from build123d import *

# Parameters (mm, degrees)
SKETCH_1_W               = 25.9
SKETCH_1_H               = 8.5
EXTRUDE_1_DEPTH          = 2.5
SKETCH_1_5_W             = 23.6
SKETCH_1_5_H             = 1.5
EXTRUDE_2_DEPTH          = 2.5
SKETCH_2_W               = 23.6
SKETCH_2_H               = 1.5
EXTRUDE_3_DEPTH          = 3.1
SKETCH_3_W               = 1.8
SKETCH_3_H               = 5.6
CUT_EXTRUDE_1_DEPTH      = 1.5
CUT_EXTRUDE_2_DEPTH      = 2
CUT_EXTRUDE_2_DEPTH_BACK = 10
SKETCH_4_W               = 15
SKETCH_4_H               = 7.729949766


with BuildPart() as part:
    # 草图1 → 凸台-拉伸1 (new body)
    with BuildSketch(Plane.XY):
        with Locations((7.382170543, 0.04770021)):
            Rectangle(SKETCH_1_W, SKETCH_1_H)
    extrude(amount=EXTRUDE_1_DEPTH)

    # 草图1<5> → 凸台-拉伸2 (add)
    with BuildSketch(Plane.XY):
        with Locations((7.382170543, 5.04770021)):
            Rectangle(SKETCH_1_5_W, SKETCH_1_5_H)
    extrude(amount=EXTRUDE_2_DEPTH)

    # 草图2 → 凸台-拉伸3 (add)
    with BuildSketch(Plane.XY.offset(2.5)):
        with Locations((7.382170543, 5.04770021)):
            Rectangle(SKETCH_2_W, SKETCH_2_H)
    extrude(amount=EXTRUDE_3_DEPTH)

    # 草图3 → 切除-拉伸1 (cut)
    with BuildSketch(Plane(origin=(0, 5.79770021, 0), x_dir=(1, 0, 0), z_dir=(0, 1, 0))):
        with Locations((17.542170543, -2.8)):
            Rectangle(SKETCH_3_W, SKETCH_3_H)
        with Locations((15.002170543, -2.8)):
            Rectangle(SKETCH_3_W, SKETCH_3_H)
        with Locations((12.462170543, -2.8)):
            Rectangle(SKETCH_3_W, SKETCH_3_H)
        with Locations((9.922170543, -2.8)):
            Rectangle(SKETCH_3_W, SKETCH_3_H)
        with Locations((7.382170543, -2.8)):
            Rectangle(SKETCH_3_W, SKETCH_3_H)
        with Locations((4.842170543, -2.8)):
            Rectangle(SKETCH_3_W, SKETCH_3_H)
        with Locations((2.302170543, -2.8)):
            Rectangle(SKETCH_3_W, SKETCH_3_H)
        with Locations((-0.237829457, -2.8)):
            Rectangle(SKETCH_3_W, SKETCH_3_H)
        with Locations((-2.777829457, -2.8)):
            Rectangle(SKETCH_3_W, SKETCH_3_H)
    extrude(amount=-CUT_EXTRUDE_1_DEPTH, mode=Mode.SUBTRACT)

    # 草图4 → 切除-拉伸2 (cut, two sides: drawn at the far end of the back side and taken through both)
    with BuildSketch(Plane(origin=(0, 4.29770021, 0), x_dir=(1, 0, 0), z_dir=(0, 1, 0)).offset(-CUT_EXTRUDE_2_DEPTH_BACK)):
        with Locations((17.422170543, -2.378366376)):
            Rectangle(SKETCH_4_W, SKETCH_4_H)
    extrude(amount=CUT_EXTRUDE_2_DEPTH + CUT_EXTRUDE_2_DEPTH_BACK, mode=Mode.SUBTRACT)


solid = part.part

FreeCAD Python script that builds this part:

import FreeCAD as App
import Part
import Sketcher
from FreeCAD import Vector

doc = App.newDocument("Part")
body = doc.addObject("PartDesign::Body", "Body")

# Sketch on XY plane
sketch1 = body.newObject("Sketcher::SketchObject", "Sketch")
sketch1.AttachmentSupport = (doc.getObject("XY_Plane"), [""])
sketch1.MapMode = "FlatFace"
sketch1.addGeometry([
    Part.LineSegment(Vector(-6, 4, 0), Vector(-6, -4, 0)),
    Part.LineSegment(Vector(-6, -4, 0), Vector(20, -4, 0)),
    Part.LineSegment(Vector(20, -4, 0), Vector(20, 4, 0)),
    Part.LineSegment(Vector(20, 4, 0), Vector(-6, 4, 0)),
], False)
sketch1.addConstraint([
    Sketcher.Constraint("Coincident", 0, 2, 1, 1),
    Sketcher.Constraint("Coincident", 1, 2, 2, 1),
    Sketcher.Constraint("Coincident", 2, 2, 3, 1),
    Sketcher.Constraint("Coincident", 3, 2, 0, 1),
    Sketcher.Constraint("Vertical", 0),
    Sketcher.Constraint("Horizontal", 1),
    Sketcher.Constraint("Vertical", 2),
    Sketcher.Constraint("Horizontal", 3),
    Sketcher.Constraint("DistanceX", 1, 1, 1, 2, 25.9),
    Sketcher.Constraint("DistanceY", 0, 2, 0, 1, 8.5),
    Sketcher.Constraint("DistanceY", 0, 2, -1, 1, 4.2023),
    Sketcher.Constraint("DistanceX", 0, 2, -1, 1, 5.567829),
])
pad1 = body.newObject("PartDesign::Pad", "Pad")
pad1.Profile = sketch1
pad1.Length = 2.5

# Sketch on XY plane
sketch2 = body.newObject("Sketcher::SketchObject", "Sketch001")
sketch2.AttachmentSupport = (doc.getObject("XY_Plane"), [""])
sketch2.MapMode = "FlatFace"
sketch2.addGeometry([
    Part.LineSegment(Vector(-4.4, 5.8, 0), Vector(-4.4, 4.3, 0)),
    Part.LineSegment(Vector(-4.4, 4.3, 0), Vector(19.2, 4.3, 0)),
    Part.LineSegment(Vector(19.2, 4.3, 0), Vector(19.2, 5.8, 0)),
    Part.LineSegment(Vector(19.2, 5.8, 0), Vector(-4.4, 5.8, 0)),
], False)
sketch2.addConstraint([
    Sketcher.Constraint("Coincident", 0, 2, 1, 1),
    Sketcher.Constraint("Coincident", 1, 2, 2, 1),
    Sketcher.Constraint("Coincident", 2, 2, 3, 1),
    Sketcher.Constraint("Coincident", 3, 2, 0, 1),
    Sketcher.Constraint("Vertical", 0),
    Sketcher.Constraint("Horizontal", 1),
    Sketcher.Constraint("Vertical", 2),
    Sketcher.Constraint("Horizontal", 3),
    Sketcher.Constraint("DistanceX", 1, 1, 1, 2, 23.6),
    Sketcher.Constraint("DistanceY", 0, 2, 0, 1, 1.5),
    Sketcher.Constraint("DistanceY", -1, 1, 0, 2, 4.2977),
    Sketcher.Constraint("DistanceX", 0, 2, -1, 1, 4.417829),
])
pad2 = body.newObject("PartDesign::Pad", "Pad001")
pad2.Profile = sketch2
pad2.Length = 2.5

# Sketch on XY plane
sketch3 = body.newObject("Sketcher::SketchObject", "Sketch002")
sketch3.AttachmentSupport = (doc.getObject("XY_Plane"), [""])
sketch3.MapMode = "FlatFace"
sketch3.AttachmentOffset = App.Placement(Vector(0, 0, 2.5), App.Rotation())
sketch3.addGeometry([
    Part.LineSegment(Vector(-4.4, 5.8, 0), Vector(-4.4, 4.3, 0)),
    Part.LineSegment(Vector(-4.4, 4.3, 0), Vector(19.2, 4.3, 0)),
    Part.LineSegment(Vector(19.2, 4.3, 0), Vector(19.2, 5.8, 0)),
    Part.LineSegment(Vector(19.2, 5.8, 0), Vector(-4.4, 5.8, 0)),
], False)
sketch3.addConstraint([
    Sketcher.Constraint("Coincident", 0, 2, 1, 1),
    Sketcher.Constraint("Coincident", 1, 2, 2, 1),
    Sketcher.Constraint("Coincident", 2, 2, 3, 1),
    Sketcher.Constraint("Coincident", 3, 2, 0, 1),
    Sketcher.Constraint("Vertical", 0),
    Sketcher.Constraint("Horizontal", 1),
    Sketcher.Constraint("Vertical", 2),
    Sketcher.Constraint("Horizontal", 3),
    Sketcher.Constraint("DistanceX", 1, 1, 1, 2, 23.6),
    Sketcher.Constraint("DistanceY", 0, 2, 0, 1, 1.5),
    Sketcher.Constraint("DistanceY", -1, 1, 0, 2, 4.2977),
    Sketcher.Constraint("DistanceX", 0, 2, -1, 1, 4.417829),
])
pad3 = body.newObject("PartDesign::Pad", "Pad002")
pad3.Profile = sketch3
pad3.Length = 3.1

# Sketch on XZ plane
sketch4 = body.newObject("Sketcher::SketchObject", "Sketch003")
sketch4.AttachmentSupport = (doc.getObject("XZ_Plane"), [""])
sketch4.MapMode = "FlatFace"
sketch4.AttachmentOffset = App.Placement(Vector(0, 0, -5.7977), App.Rotation())
sketch4.addGeometry([
    Part.LineSegment(Vector(16.6, 0, 0), Vector(16.6, 5.6, 0)),  # 0
    Part.LineSegment(Vector(16.6, 5.6, 0), Vector(18.4, 5.6, 0)),  # 1
    Part.LineSegment(Vector(18.4, 5.6, 0), Vector(18.4, 0, 0)),  # 2
    Part.LineSegment(Vector(18.4, 0, 0), Vector(16.6, 0, 0)),  # 3
    Part.LineSegment(Vector(14.1, 0, 0), Vector(14.1, 5.6, 0)),  # 4
    Part.LineSegment(Vector(14.1, 5.6, 0), Vector(15.9, 5.6, 0)),  # 5
    Part.LineSegment(Vector(15.9, 5.6, 0), Vector(15.9, 0, 0)),  # 6
    Part.LineSegment(Vector(15.9, 0, 0), Vector(14.1, 0, 0)),  # 7
    Part.LineSegment(Vector(11.6, 0, 0), Vector(11.6, 5.6, 0)),  # 8
    Part.LineSegment(Vector(11.6, 5.6, 0), Vector(13.4, 5.6, 0)),  # 9
    Part.LineSegment(Vector(13.4, 5.6, 0), Vector(13.4, 0, 0)),  # 10
    Part.LineSegment(Vector(13.4, 0, 0), Vector(11.6, 0, 0)),  # 11
    Part.LineSegment(Vector(9, 0, 0), Vector(9, 5.6, 0)),  # 12
    Part.LineSegment(Vector(9, 5.6, 0), Vector(10.8, 5.6, 0)),  # 13
    Part.LineSegment(Vector(10.8, 5.6, 0), Vector(10.8, 0, 0)),  # 14
    Part.LineSegment(Vector(10.8, 0, 0), Vector(9, 0, 0)),  # 15
    Part.LineSegment(Vector(6.5, 0, 0), Vector(6.5, 5.6, 0)),  # 16
    Part.LineSegment(Vector(6.5, 5.6, 0), Vector(8.3, 5.6, 0)),  # 17
    Part.LineSegment(Vector(8.3, 5.6, 0), Vector(8.3, 0, 0)),  # 18
    Part.LineSegment(Vector(8.3, 0, 0), Vector(6.5, 0, 0)),  # 19
    Part.LineSegment(Vector(3.9, 0, 0), Vector(3.9, 5.6, 0)),  # 20
    Part.LineSegment(Vector(3.9, 5.6, 0), Vector(5.7, 5.6, 0)),  # 21
    Part.LineSegment(Vector(5.7, 5.6, 0), Vector(5.7, 0, 0)),  # 22
    Part.LineSegment(Vector(5.7, 0, 0), Vector(3.9, 0, 0)),  # 23
    Part.LineSegment(Vector(1.4, 0, 0), Vector(1.4, 5.6, 0)),  # 24
    Part.LineSegment(Vector(1.4, 5.6, 0), Vector(3.2, 5.6, 0)),  # 25
    Part.LineSegment(Vector(3.2, 5.6, 0), Vector(3.2, 0, 0)),  # 26
    Part.LineSegment(Vector(3.2, 0, 0), Vector(1.4, 0, 0)),  # 27
    Part.LineSegment(Vector(-1.1, 0, 0), Vector(-1.1, 5.6, 0)),  # 28
    Part.LineSegment(Vector(-1.1, 5.6, 0), Vector(0.7, 5.6, 0)),  # 29
    Part.LineSegment(Vector(0.7, 5.6, 0), Vector(0.7, 0, 0)),  # 30
    Part.LineSegment(Vector(0.7, 0, 0), Vector(-1.1, 0, 0)),  # 31
    Part.LineSegment(Vector(-3.7, 0, 0), Vector(-3.7, 5.6, 0)),  # 32
    Part.LineSegment(Vector(-3.7, 5.6, 0), Vector(-1.9, 5.6, 0)),  # 33
    Part.LineSegment(Vector(-1.9, 5.6, 0), Vector(-1.9, 0, 0)),  # 34
    Part.LineSegment(Vector(-1.9, 0, 0), Vector(-3.7, 0, 0)),  # 35
], False)
sketch4.addConstraint([
    Sketcher.Constraint("Coincident", 0, 2, 1, 1),
    Sketcher.Constraint("Coincident", 1, 2, 2, 1),
    Sketcher.Constraint("Coincident", 2, 2, 3, 1),
    Sketcher.Constraint("Coincident", 3, 2, 0, 1),
    Sketcher.Constraint("Coincident", 4, 2, 5, 1),
    Sketcher.Constraint("Coincident", 5, 2, 6, 1),
    Sketcher.Constraint("Coincident", 6, 2, 7, 1),
    Sketcher.Constraint("Coincident", 7, 2, 4, 1),
    Sketcher.Constraint("Coincident", 8, 2, 9, 1),
    Sketcher.Constraint("Coincident", 9, 2, 10, 1),
    Sketcher.Constraint("Coincident", 10, 2, 11, 1),
    Sketcher.Constraint("Coincident", 11, 2, 8, 1),
    Sketcher.Constraint("Coincident", 12, 2, 13, 1),
    Sketcher.Constraint("Coincident", 13, 2, 14, 1),
    Sketcher.Constraint("Coincident", 14, 2, 15, 1),
    Sketcher.Constraint("Coincident", 15, 2, 12, 1),
    Sketcher.Constraint("Coincident", 16, 2, 17, 1),
    Sketcher.Constraint("Coincident", 17, 2, 18, 1),
    Sketcher.Constraint("Coincident", 18, 2, 19, 1),
    Sketcher.Constraint("Coincident", 19, 2, 16, 1),
    Sketcher.Constraint("Coincident", 20, 2, 21, 1),
    Sketcher.Constraint("Coincident", 21, 2, 22, 1),
    Sketcher.Constraint("Coincident", 22, 2, 23, 1),
    Sketcher.Constraint("Coincident", 23, 2, 20, 1),
    Sketcher.Constraint("Coincident", 24, 2, 25, 1),
    Sketcher.Constraint("Coincident", 25, 2, 26, 1),
    Sketcher.Constraint("Coincident", 26, 2, 27, 1),
    Sketcher.Constraint("Coincident", 27, 2, 24, 1),
    Sketcher.Constraint("Coincident", 28, 2, 29, 1),
    Sketcher.Constraint("Coincident", 29, 2, 30, 1),
    Sketcher.Constraint("Coincident", 30, 2, 31, 1),
    Sketcher.Constraint("Coincident", 31, 2, 28, 1),
    Sketcher.Constraint("Coincident", 32, 2, 33, 1),
    Sketcher.Constraint("Coincident", 33, 2, 34, 1),
    Sketcher.Constraint("Coincident", 34, 2, 35, 1),
    Sketcher.Constraint("Coincident", 35, 2, 32, 1),
    Sketcher.Constraint("Vertical", 0),
    Sketcher.Constraint("Horizontal", 1),
    Sketcher.Constraint("Vertical", 2),
    Sketcher.Constraint("Horizontal", 3),
    Sketcher.Constraint("Vertical", 4),
    Sketcher.Constraint("Horizontal", 5),
    Sketcher.Constraint("Vertical", 6),
    Sketcher.Constraint("Horizontal", 7),
    Sketcher.Constraint("Vertical", 8),
    Sketcher.Constraint("Horizontal", 9),
    Sketcher.Constraint("Vertical", 10),
    Sketcher.Constraint("Horizontal", 11),
    Sketcher.Constraint("Vertical", 12),
    Sketcher.Constraint("Horizontal", 13),
    Sketcher.Constraint("Vertical", 14),
    Sketcher.Constraint("Horizontal", 15),
    Sketcher.Constraint("Vertical", 16),
    Sketcher.Constraint("Horizontal", 17),
    Sketcher.Constraint("Vertical", 18),
    Sketcher.Constraint("Horizontal", 19),
    Sketcher.Constraint("Vertical", 20),
    Sketcher.Constraint("Horizontal", 21),
    Sketcher.Constraint("Vertical", 22),
    Sketcher.Constraint("Horizontal", 23),
    Sketcher.Constraint("Vertical", 24),
    Sketcher.Constraint("Horizontal", 25),
    Sketcher.Constraint("Vertical", 26),
    Sketcher.Constraint("Horizontal", 27),
    Sketcher.Constraint("Vertical", 28),
    Sketcher.Constraint("Horizontal", 29),
    Sketcher.Constraint("Vertical", 30),
    Sketcher.Constraint("Horizontal", 31),
    Sketcher.Constraint("Vertical", 32),
    Sketcher.Constraint("Horizontal", 33),
    Sketcher.Constraint("Vertical", 34),
    Sketcher.Constraint("Horizontal", 35),
    Sketcher.Constraint("PointOnObject", 2, 2, -1),
    Sketcher.Constraint("PointOnObject", 6, 2, -1),
    Sketcher.Constraint("PointOnObject", 10, 2, -1),
    Sketcher.Constraint("PointOnObject", 14, 2, -1),
    Sketcher.Constraint("PointOnObject", 18, 2, -1),
    Sketcher.Constraint("PointOnObject", 22, 2, -1),
    Sketcher.Constraint("PointOnObject", 26, 2, -1),
    Sketcher.Constraint("PointOnObject", 30, 2, -1),
    Sketcher.Constraint("PointOnObject", 34, 2, -1),
    Sketcher.Constraint("Horizontal", 1, 2, 4, 2),
    Sketcher.Constraint("Horizontal", 5, 2, 8, 2),
    Sketcher.Constraint("Horizontal", 9, 2, 12, 2),
    Sketcher.Constraint("Horizontal", 13, 2, 16, 2),
    Sketcher.Constraint("Horizontal", 17, 2, 20, 2),
    Sketcher.Constraint("Horizontal", 21, 2, 24, 2),
    Sketcher.Constraint("Horizontal", 25, 2, 28, 2),
    Sketcher.Constraint("Horizontal", 29, 2, 32, 2),
    Sketcher.Constraint("Equal", 3, 5),
    Sketcher.Constraint("Equal", 7, 9),
    Sketcher.Constraint("Equal", 11, 13),
    Sketcher.Constraint("Equal", 15, 17),
    Sketcher.Constraint("Equal", 19, 21),
    Sketcher.Constraint("Equal", 23, 25),
    Sketcher.Constraint("Equal", 27, 29),
    Sketcher.Constraint("Equal", 31, 33),
    Sketcher.Constraint("DistanceX", 1, 1, 1, 2, 1.8),
    Sketcher.Constraint("DistanceY", 0, 1, 0, 2, 5.6),
    Sketcher.Constraint("DistanceX", 4, 2, 0, 2, 2.54),
    Sketcher.Constraint("DistanceX", 8, 2, 4, 2, 2.54),
    Sketcher.Constraint("DistanceX", 12, 2, 8, 2, 2.54),
    Sketcher.Constraint("DistanceX", 16, 2, 12, 2, 2.54),
    Sketcher.Constraint("DistanceX", 20, 2, 16, 2, 2.54),
    Sketcher.Constraint("DistanceX", 24, 2, 20, 2, 2.54),
    Sketcher.Constraint("DistanceX", 28, 2, 24, 2, 2.54),
    Sketcher.Constraint("DistanceX", 32, 2, 28, 2, 2.54),
    Sketcher.Constraint("DistanceX", -1, 1, 0, 2, 16.642171),
])
pocket1 = body.newObject("PartDesign::Pocket", "Pocket")
pocket1.Profile = sketch4
pocket1.Length = 1.5
pocket1.Reversed = True

# Sketch on XZ plane
sketch5 = body.newObject("Sketcher::SketchObject", "Sketch004")
sketch5.AttachmentSupport = (doc.getObject("XZ_Plane"), [""])
sketch5.MapMode = "FlatFace"
sketch5.AttachmentOffset = App.Placement(Vector(0, 0, -4.2977), App.Rotation())
sketch5.addGeometry([
    Part.LineSegment(Vector(10, -1, 0), Vector(10, 6, 0)),
    Part.LineSegment(Vector(10, 6, 0), Vector(25, 6, 0)),
    Part.LineSegment(Vector(25, 6, 0), Vector(25, -1, 0)),
    Part.LineSegment(Vector(25, -1, 0), Vector(10, -1, 0)),
], False)
sketch5.addConstraint([
    Sketcher.Constraint("Coincident", 0, 2, 1, 1),
    Sketcher.Constraint("Coincident", 1, 2, 2, 1),
    Sketcher.Constraint("Coincident", 2, 2, 3, 1),
    Sketcher.Constraint("Coincident", 3, 2, 0, 1),
    Sketcher.Constraint("Vertical", 0),
    Sketcher.Constraint("Horizontal", 1),
    Sketcher.Constraint("Vertical", 2),
    Sketcher.Constraint("Horizontal", 3),
    Sketcher.Constraint("DistanceX", 1, 1, 1, 2, 15.0),
    Sketcher.Constraint("DistanceY", 0, 1, 0, 2, 7.72995),
    Sketcher.Constraint("DistanceX", -1, 1, 0, 2, 9.922171),
    Sketcher.Constraint("DistanceY", -1, 1, 0, 2, 6.243341),
])
pocket2 = body.newObject("PartDesign::Pocket", "Pocket001")
pocket2.Profile = sketch5
pocket2.Type = "ThroughAll"
pocket2.Midplane = True

doc.recompute()
